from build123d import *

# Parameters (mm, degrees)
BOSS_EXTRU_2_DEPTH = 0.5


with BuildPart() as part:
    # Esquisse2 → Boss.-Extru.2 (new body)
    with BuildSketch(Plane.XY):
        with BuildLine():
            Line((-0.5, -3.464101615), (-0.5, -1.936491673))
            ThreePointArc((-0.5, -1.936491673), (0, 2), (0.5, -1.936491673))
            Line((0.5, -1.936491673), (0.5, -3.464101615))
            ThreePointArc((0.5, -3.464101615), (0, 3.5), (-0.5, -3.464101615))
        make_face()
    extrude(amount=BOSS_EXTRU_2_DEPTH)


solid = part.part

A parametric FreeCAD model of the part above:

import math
import FreeCAD as App
import Part
import Sketcher
from FreeCAD import Vector
Q = App.Units.Quantity

doc = App.newDocument("Part")
body = doc.addObject("PartDesign::Body", "Body")

sketch1 = body.newObject("Sketcher::SketchObject", "Sketch")
sketch1.AttachmentSupport = (doc.getObject("XY_Plane"), [""])
sketch1.MapMode = "FlatFace"
sketch1.addGeometry([
    Part.LineSegment(Vector(-0.5, -3.5, 0), Vector(-0.5, -1.9, 0)),
    Part.ArcOfCircle(Part.Circle(Vector(0, 0, 0), Vector(0, 0, 1), 2), math.radians(-76), math.radians(256)),
    Part.LineSegment(Vector(0.5, -1.9, 0), Vector(0.5, -3.5, 0)),
    Part.ArcOfCircle(Part.Circle(Vector(0, 0, 0), Vector(0, 0, 1), 3.5), math.radians(-82), math.radians(262)),
], False)
sketch1.addConstraint([
    Sketcher.Constraint("Coincident", 0, 2, 1, 2),
    Sketcher.Constraint("Coincident", 1, 1, 2, 1),
    Sketcher.Constraint("Coincident", 2, 2, 3, 1),
    Sketcher.Constraint("Coincident", 3, 2, 0, 1),
    Sketcher.Constraint("Vertical", 0),
    Sketcher.Constraint("Vertical", 2),
    Sketcher.Constraint("Coincident", 1, 3, -1, 1),
    Sketcher.Constraint("Coincident", 3, 3, -1, 1),
    Sketcher.Constraint("Horizontal", 0, 2, 1, 1),
    Sketcher.Constraint("Radius", 1, Q("2 mm")),
    Sketcher.Constraint("Radius", 3, Q("3.5 mm")),
    Sketcher.Constraint("DistanceX", 0, 2, 1, 1, Q("1 mm")),
])
pad1 = body.newObject("PartDesign::Pad", "Pad")
pad1.Profile = sketch1
pad1.Length = 0.5

doc.recompute()
